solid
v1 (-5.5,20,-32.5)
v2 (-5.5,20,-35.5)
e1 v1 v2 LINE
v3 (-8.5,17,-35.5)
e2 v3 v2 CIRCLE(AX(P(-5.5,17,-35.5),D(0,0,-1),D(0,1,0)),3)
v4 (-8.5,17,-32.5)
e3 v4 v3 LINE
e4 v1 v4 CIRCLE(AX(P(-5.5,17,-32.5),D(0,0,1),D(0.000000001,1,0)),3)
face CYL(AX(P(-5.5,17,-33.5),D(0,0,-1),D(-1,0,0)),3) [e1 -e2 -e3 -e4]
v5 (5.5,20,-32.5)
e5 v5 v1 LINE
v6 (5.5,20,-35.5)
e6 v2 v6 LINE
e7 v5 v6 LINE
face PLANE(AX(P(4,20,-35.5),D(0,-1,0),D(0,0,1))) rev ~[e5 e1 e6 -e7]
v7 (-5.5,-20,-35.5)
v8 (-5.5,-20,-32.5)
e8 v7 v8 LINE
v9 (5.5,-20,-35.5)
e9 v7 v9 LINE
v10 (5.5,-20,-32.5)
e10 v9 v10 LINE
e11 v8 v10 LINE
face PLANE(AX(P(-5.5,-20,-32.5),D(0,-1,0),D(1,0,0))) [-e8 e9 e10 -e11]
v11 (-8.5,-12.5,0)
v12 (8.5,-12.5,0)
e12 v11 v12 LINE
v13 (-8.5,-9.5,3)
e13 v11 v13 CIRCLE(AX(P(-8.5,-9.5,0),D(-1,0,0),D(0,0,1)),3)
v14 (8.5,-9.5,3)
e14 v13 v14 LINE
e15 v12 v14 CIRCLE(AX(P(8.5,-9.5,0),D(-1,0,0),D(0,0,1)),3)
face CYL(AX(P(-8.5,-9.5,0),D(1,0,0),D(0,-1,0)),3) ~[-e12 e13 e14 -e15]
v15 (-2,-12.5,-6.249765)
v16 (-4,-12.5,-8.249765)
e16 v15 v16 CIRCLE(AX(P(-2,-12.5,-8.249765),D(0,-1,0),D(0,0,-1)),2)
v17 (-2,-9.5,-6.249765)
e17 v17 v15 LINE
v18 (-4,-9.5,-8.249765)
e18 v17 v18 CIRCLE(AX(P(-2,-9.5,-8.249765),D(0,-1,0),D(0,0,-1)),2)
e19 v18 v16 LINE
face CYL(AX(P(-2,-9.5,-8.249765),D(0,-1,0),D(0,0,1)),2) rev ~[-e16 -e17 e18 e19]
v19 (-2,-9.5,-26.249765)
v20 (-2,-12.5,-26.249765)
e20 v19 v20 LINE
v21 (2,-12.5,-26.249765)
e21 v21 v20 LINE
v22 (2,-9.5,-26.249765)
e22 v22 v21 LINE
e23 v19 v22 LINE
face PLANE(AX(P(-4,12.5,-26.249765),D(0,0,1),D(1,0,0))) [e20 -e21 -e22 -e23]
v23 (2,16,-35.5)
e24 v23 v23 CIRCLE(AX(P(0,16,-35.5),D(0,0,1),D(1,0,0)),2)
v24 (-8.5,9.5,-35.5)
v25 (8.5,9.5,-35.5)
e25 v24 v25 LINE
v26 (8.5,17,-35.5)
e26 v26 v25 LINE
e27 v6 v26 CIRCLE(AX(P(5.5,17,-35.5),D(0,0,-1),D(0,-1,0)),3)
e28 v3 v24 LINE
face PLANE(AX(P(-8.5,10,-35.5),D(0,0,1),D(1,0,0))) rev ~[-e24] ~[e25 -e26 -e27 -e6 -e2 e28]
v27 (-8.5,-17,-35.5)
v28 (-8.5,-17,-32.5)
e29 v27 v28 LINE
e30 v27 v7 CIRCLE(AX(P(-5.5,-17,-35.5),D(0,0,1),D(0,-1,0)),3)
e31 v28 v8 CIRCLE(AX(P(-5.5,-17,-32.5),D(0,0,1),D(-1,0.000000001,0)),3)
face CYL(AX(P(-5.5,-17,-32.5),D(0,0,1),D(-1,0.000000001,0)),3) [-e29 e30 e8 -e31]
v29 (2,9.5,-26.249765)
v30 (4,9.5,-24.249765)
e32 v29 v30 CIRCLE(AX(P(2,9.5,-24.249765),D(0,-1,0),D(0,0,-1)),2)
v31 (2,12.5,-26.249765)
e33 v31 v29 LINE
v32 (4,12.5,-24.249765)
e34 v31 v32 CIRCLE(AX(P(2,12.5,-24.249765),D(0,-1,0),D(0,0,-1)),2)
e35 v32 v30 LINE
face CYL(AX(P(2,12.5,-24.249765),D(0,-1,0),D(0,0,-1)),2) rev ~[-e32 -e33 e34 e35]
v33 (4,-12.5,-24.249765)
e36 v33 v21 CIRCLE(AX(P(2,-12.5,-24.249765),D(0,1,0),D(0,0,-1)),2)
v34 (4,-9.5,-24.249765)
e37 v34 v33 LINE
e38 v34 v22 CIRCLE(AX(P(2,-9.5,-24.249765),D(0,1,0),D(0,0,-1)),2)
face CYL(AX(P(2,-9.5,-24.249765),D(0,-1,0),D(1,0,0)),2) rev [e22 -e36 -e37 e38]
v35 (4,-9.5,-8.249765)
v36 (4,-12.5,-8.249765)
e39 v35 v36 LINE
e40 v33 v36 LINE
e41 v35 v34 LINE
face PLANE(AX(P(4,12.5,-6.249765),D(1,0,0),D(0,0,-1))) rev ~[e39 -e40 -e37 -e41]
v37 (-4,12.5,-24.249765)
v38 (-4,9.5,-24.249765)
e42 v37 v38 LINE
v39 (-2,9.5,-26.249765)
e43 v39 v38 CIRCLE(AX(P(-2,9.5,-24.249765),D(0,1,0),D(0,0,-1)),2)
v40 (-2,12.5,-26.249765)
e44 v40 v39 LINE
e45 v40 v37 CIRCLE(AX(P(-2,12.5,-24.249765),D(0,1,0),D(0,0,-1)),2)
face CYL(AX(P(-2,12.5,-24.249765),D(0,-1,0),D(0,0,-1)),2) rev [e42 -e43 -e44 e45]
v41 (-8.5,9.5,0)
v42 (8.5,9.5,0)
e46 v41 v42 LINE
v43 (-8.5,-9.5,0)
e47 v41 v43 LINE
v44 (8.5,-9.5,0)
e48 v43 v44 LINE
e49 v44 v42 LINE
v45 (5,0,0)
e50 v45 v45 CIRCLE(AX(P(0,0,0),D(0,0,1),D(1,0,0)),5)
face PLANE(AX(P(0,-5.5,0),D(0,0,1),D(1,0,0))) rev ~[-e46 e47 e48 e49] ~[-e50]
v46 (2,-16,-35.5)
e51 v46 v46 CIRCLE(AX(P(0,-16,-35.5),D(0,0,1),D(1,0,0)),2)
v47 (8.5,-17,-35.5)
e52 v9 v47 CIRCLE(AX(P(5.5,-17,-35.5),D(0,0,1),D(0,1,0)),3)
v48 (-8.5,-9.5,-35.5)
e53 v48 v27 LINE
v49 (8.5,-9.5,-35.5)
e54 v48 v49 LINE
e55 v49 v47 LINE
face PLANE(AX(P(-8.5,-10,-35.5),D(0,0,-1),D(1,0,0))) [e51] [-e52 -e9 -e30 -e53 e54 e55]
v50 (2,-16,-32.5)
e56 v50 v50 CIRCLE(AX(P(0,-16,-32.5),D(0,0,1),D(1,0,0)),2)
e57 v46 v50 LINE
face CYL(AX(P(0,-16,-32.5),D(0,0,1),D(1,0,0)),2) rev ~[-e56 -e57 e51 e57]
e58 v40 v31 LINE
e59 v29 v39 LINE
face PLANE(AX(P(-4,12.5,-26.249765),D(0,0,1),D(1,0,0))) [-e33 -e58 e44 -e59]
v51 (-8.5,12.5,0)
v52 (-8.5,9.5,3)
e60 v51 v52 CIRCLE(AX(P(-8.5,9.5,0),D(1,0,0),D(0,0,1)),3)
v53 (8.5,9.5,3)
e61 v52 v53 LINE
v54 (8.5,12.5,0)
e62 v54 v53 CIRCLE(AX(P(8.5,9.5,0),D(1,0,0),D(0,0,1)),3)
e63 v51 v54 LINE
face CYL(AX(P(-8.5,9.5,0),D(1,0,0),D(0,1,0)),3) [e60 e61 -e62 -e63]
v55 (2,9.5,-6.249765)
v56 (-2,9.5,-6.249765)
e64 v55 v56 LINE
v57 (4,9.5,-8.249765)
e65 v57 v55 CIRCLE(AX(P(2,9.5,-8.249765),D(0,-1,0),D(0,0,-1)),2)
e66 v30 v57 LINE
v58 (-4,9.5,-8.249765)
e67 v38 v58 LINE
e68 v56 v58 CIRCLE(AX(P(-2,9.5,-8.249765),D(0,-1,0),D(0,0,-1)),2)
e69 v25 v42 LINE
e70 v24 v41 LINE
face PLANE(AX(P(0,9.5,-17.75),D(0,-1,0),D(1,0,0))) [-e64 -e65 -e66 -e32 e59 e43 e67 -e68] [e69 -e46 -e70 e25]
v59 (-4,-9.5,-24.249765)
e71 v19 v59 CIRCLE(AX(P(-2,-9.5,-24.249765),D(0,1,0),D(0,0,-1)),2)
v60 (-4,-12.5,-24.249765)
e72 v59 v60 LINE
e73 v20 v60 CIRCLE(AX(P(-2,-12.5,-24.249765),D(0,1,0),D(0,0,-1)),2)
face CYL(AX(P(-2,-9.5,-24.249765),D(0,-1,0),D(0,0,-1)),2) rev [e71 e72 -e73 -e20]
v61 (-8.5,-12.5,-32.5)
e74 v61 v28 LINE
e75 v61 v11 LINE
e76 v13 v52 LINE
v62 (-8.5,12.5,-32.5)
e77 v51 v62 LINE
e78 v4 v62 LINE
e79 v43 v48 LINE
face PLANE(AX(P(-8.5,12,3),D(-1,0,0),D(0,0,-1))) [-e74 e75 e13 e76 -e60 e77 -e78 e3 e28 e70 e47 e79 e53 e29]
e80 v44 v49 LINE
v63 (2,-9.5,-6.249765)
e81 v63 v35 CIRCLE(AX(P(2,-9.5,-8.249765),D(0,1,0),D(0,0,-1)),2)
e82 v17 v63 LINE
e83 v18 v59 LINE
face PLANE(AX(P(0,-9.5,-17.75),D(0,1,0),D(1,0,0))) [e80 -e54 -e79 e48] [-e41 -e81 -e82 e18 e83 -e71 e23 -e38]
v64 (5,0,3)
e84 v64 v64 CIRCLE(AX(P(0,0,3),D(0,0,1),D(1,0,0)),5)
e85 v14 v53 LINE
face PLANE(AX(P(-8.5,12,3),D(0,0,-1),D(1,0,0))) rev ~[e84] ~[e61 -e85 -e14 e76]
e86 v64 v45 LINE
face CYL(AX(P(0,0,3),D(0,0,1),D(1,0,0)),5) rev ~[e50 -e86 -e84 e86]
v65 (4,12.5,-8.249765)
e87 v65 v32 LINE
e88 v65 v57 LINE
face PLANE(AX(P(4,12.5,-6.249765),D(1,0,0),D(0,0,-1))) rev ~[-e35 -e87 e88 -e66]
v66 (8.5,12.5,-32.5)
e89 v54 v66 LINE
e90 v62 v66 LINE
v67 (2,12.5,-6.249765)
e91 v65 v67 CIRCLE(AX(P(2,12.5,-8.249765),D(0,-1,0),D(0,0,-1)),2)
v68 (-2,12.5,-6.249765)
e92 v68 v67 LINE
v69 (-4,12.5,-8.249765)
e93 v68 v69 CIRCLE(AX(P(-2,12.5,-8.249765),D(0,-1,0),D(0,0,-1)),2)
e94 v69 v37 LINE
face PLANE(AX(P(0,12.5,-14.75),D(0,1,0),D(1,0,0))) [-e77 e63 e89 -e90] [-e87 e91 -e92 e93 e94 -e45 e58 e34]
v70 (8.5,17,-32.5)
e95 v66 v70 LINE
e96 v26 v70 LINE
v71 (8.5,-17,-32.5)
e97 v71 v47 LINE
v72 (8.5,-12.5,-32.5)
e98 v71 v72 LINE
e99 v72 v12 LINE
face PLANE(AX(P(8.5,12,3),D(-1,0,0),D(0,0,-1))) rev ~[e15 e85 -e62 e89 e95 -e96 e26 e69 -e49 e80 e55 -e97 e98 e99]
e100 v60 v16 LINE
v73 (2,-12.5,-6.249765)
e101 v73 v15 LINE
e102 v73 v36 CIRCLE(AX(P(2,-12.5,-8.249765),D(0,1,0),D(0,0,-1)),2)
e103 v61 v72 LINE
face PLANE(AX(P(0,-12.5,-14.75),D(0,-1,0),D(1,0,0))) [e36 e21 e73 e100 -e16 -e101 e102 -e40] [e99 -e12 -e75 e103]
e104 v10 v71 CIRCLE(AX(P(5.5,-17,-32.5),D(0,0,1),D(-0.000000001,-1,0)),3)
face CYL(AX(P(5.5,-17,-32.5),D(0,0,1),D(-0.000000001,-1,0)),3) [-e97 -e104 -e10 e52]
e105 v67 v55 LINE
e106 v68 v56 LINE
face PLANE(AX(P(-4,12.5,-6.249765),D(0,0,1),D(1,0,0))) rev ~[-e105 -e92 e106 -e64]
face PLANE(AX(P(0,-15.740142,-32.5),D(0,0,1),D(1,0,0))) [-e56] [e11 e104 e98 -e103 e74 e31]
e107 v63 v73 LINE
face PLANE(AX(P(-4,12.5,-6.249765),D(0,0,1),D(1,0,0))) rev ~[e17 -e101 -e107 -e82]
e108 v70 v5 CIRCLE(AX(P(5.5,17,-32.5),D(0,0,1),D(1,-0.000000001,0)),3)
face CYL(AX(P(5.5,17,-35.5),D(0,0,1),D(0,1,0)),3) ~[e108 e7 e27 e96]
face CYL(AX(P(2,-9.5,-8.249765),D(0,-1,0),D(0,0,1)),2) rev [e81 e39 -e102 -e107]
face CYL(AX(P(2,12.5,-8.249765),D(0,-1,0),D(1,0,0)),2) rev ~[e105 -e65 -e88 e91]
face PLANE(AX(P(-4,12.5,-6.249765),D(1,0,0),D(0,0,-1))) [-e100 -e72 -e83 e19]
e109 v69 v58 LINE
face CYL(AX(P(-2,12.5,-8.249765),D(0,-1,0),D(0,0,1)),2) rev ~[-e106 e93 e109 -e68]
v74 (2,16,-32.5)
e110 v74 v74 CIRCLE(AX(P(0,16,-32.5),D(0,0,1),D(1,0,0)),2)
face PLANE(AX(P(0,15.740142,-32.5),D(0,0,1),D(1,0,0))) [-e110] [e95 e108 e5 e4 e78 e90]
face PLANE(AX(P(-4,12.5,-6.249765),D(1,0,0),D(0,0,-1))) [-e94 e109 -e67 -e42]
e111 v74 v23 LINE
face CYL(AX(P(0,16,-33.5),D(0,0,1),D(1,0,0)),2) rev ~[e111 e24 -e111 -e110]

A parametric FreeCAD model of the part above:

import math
import FreeCAD as App
import Part
import Sketcher

V = App.Vector


def edges_at(feature, points):
    """Names of the edges that pass closest to the given points."""
    edges = feature.Shape.Edges
    near = lambda p: min(range(len(edges)), key=lambda i: edges[i].distToShape(Part.Vertex(*p))[0])
    return sorted({f"Edge{near(p) + 1}" for p in points})


def add_polygon(sketch, points):
    """Adds a closed chain of lines whose ends are joined by coincident constraints."""
    first, n = sketch.GeometryCount, len(points)
    for a, b in zip(points, points[1:] + points[:1]):
        sketch.addGeometry(Part.LineSegment(App.Vector(*a, 0), App.Vector(*b, 0)), False)
    for i in range(n):
        sketch.addConstraint(Sketcher.Constraint("Coincident", first + i, 2, first + (i + 1) % n, 1))

doc = App.newDocument("Part")
body = doc.addObject("PartDesign::Body", "Body")

sketch1 = doc.addObject("Sketcher::SketchObject", "Sketch")
body.addObject(sketch1)
sketch1.AttachmentSupport = (doc.XY_Plane, [""])
sketch1.MapMode = "FlatFace"
sketch1.addGeometry(Part.ArcOfCircle(Part.Circle(V(0, 0, 0), V(0, 0, 1), 7.5), math.radians(-57.769047), math.radians(0)), False)
sketch1.addGeometry(Part.ArcOfCircle(Part.Circle(V(0, 0, 0), V(0, 0, 1), 7.5), math.radians(0), math.radians(57.769047)), False)
sketch1.addGeometry(Part.LineSegment(V(4, 6.344289, 0), V(4, 10, 0)), False)
sketch1.addGeometry(Part.LineSegment(V(4, 10, 0), V(-4, 10, 0)), False)
sketch1.addGeometry(Part.LineSegment(V(-4, 10, 0), V(-4, 6.344289, 0)), False)
sketch1.addGeometry(Part.ArcOfCircle(Part.Circle(V(0, 0, 0), V(0, 0, 1), 7.5), math.radians(122.230953), math.radians(237.769047)), False)
sketch1.addGeometry(Part.LineSegment(V(-4, -6.344289, 0), V(-4, -10, 0)), False)
sketch1.addGeometry(Part.LineSegment(V(-4, -10, 0), V(4, -10, 0)), False)
sketch1.addGeometry(Part.LineSegment(V(4, -10, 0), V(4, -6.344289, 0)), False)
sketch1.addGeometry(Part.Circle(V(0, 0, 0), V(0, 0, 1), 2), False)
sketch1.addConstraint(Sketcher.Constraint("Tangent", 0, 2, 1, 1))
sketch1.addConstraint(Sketcher.Constraint("Coincident", 1, 2, 2, 1))
sketch1.addConstraint(Sketcher.Constraint("Coincident", 2, 2, 3, 1))
sketch1.addConstraint(Sketcher.Constraint("Coincident", 3, 2, 4, 1))
sketch1.addConstraint(Sketcher.Constraint("Coincident", 4, 2, 5, 1))
sketch1.addConstraint(Sketcher.Constraint("Coincident", 5, 2, 6, 1))
sketch1.addConstraint(Sketcher.Constraint("Coincident", 6, 2, 7, 1))
sketch1.addConstraint(Sketcher.Constraint("Coincident", 7, 2, 8, 1))
sketch1.addConstraint(Sketcher.Constraint("Coincident", 8, 2, 0, 1))
sketch1.addConstraint(Sketcher.Constraint("Vertical", 2))
sketch1.addConstraint(Sketcher.Constraint("Horizontal", 3))
sketch1.addConstraint(Sketcher.Constraint("Vertical", 4))
sketch1.addConstraint(Sketcher.Constraint("Vertical", 6))
sketch1.addConstraint(Sketcher.Constraint("Horizontal", 7))
sketch1.addConstraint(Sketcher.Constraint("Vertical", 8))
sketch1.addConstraint(Sketcher.Constraint("Coincident", 0, 3, -1, 1))
sketch1.addConstraint(Sketcher.Constraint("Coincident", 5, 3, -1, 1))
sketch1.addConstraint(Sketcher.Constraint("Coincident", 9, 3, -1, 1))
sketch1.addConstraint(Sketcher.Constraint("Equal", 0, 1))
sketch1.addConstraint(Sketcher.Constraint("Equal", 1, 5))
sketch1.addConstraint(Sketcher.Constraint("Symmetric", 2, 2, 6, 2, -1, 1))
sketch1.addConstraint(Sketcher.Constraint("PointOnObject", 0, 2, -1))
sketch1.addConstraint(Sketcher.Constraint("Horizontal", 1, 2, 4, 2))
sketch1.addConstraint(Sketcher.Constraint("Horizontal", 5, 2, 8, 2))
sketch1.addConstraint(Sketcher.Constraint("Diameter", 9, 4.0))
sketch1.addConstraint(Sketcher.Constraint("Radius", 0, 7.5))
sketch1.addConstraint(Sketcher.Constraint("DistanceX", 3, 2, 3, 1, 8.0))
sketch1.addConstraint(Sketcher.Constraint("DistanceY", -1, 1, 2, 2, 10.0))
pad1 = doc.addObject("PartDesign::Pad", "Pad")
body.addObject(pad1)
pad1.Profile = sketch1
pad1.Length = 2

sketch2 = doc.addObject("Sketcher::SketchObject", "Sketch001")
body.addObject(sketch2)
sketch2.AttachmentSupport = (doc.XY_Plane, [""])
sketch2.MapMode = "FlatFace"
sketch2.AttachmentOffset = App.Placement(V(0, 0, 2), App.Rotation())
add_polygon(sketch2, [(-4, -10), (-4, -12), (4, -12), (4, -10)])
add_polygon(sketch2, [(-4, 12), (-4, 10), (4, 10), (4, 12)])
sketch2.addConstraint(Sketcher.Constraint("Vertical", 0))
sketch2.addConstraint(Sketcher.Constraint("Horizontal", 1))
sketch2.addConstraint(Sketcher.Constraint("Vertical", 2))
sketch2.addConstraint(Sketcher.Constraint("Horizontal", 3))
sketch2.addConstraint(Sketcher.Constraint("Vertical", 4))
sketch2.addConstraint(Sketcher.Constraint("Horizontal", 5))
sketch2.addConstraint(Sketcher.Constraint("Vertical", 6))
sketch2.addConstraint(Sketcher.Constraint("Horizontal", 7))
sketch2.addConstraint(Sketcher.Constraint("Symmetric", 2, 2, 4, 2, -1, 1))
sketch2.addConstraint(Sketcher.Constraint("Symmetric", 0, 2, 6, 2, -1, 1))
sketch2.addConstraint(Sketcher.Constraint("Vertical", 3, 2, 4, 2))
sketch2.addConstraint(Sketcher.Constraint("DistanceX", 1, 1, 1, 2, 8.0))
sketch2.addConstraint(Sketcher.Constraint("DistanceY", 0, 2, 0, 1, 2.0))
sketch2.addConstraint(Sketcher.Constraint("DistanceY", 0, 2, -1, 1, 12.0))
pad2 = doc.addObject("PartDesign::Pad", "Pad001")
body.addObject(pad2)
pad2.Profile = sketch2
pad2.Length = 35.5
pad2.Reversed = True

sketch3 = doc.addObject("Sketcher::SketchObject", "Sketch002")
body.addObject(sketch3)
sketch3.AttachmentSupport = (doc.XY_Plane, [""])
sketch3.MapMode = "FlatFace"
sketch3.addGeometry(Part.Circle(V(0, 5.5, 0), V(0, 0, 1), 1), False)
sketch3.addGeometry(Part.Circle(V(0, -5.5, 0), V(0, 0, 1), 1), False)
sketch3.addConstraint(Sketcher.Constraint("Equal", 0, 1))
sketch3.addConstraint(Sketcher.Constraint("Symmetric", 0, 3, 1, 3, -1, 1))
sketch3.addConstraint(Sketcher.Constraint("PointOnObject", 0, 3, -2))
sketch3.addConstraint(Sketcher.Constraint("Diameter", 0, 2.0))
sketch3.addConstraint(Sketcher.Constraint("DistanceY", 1, 3, 0, 3, 11.0))
pocket1 = doc.addObject("PartDesign::Pocket", "Pocket")
body.addObject(pocket1)
pocket1.Profile = sketch3
pocket1.Length = 8
pocket1.Reversed = True

sketch4 = doc.addObject("Sketcher::SketchObject", "Sketch003")
body.addObject(sketch4)
sketch4.AttachmentSupport = (doc.XY_Plane, [""])
sketch4.MapMode = "FlatFace"
sketch4.AttachmentOffset = App.Placement(V(0, 0, -33.5), App.Rotation())
add_polygon(sketch4, [(4, -10), (4, -20), (-4, -20), (-4, -10)])
add_polygon(sketch4, [(4, 20), (4, 10), (-4, 10), (-4, 20)])
sketch4.addConstraint(Sketcher.Constraint("Vertical", 0))
sketch4.addConstraint(Sketcher.Constraint("Horizontal", 1))
sketch4.addConstraint(Sketcher.Constraint("Vertical", 2))
sketch4.addConstraint(Sketcher.Constraint("Horizontal", 3))
sketch4.addConstraint(Sketcher.Constraint("Vertical", 4))
sketch4.addConstraint(Sketcher.Constraint("Horizontal", 5))
sketch4.addConstraint(Sketcher.Constraint("Vertical", 6))
sketch4.addConstraint(Sketcher.Constraint("Horizontal", 7))
sketch4.addConstraint(Sketcher.Constraint("Symmetric", 2, 2, 4, 2, -1, 1))
sketch4.addConstraint(Sketcher.Constraint("Symmetric", 0, 2, 6, 2, -1, 1))
sketch4.addConstraint(Sketcher.Constraint("Vertical", 3, 2, 4, 2))
sketch4.addConstraint(Sketcher.Constraint("DistanceX", 1, 2, 1, 1, 8.0))
sketch4.addConstraint(Sketcher.Constraint("DistanceY", 0, 2, 0, 1, 10.0))
sketch4.addConstraint(Sketcher.Constraint("DistanceY", 0, 2, -1, 1, 20.0))
pad3 = doc.addObject("PartDesign::Pad", "Pad002")
body.addObject(pad3)
pad3.Profile = sketch4
pad3.Length = 2
pad3.Reversed = True

sketch5 = doc.addObject("Sketcher::SketchObject", "Sketch004")
body.addObject(sketch5)
sketch5.AttachmentSupport = (doc.XY_Plane, [""])
sketch5.MapMode = "FlatFace"
sketch5.AttachmentOffset = App.Placement(V(0, 0, -33.5), App.Rotation())
sketch5.addGeometry(Part.Circle(V(0, 16, 0), V(0, 0, 1), 2), False)
sketch5.addGeometry(Part.Circle(V(0, -16, 0), V(0, 0, 1), 2), False)
sketch5.addConstraint(Sketcher.Constraint("Equal", 0, 1))
sketch5.addConstraint(Sketcher.Constraint("Symmetric", 0, 3, 1, 3, -1, 1))
sketch5.addConstraint(Sketcher.Constraint("PointOnObject", 0, 3, -2))
sketch5.addConstraint(Sketcher.Constraint("Diameter", 0, 4.0))
sketch5.addConstraint(Sketcher.Constraint("DistanceY", -1, 1, 0, 3, 16.0))
pocket2 = doc.addObject("PartDesign::Pocket", "Pocket001")
body.addObject(pocket2)
pocket2.Profile = sketch5
pocket2.Length = 2

sketch6 = doc.addObject("Sketcher::SketchObject", "Sketch005")
body.addObject(sketch6)
sketch6.AttachmentSupport = (doc.YZ_Plane, [""])
sketch6.MapMode = "FlatFace"
sketch6.AttachmentOffset = App.Placement(V(0, 0, -4), App.Rotation())
add_polygon(sketch6, [(10, -35.5), (10, 0), (-10, 0), (-10, -35.5), (-20, -35.5), (-20, -33.5), (-12, -33.5), (-12, 2), (12, 2), (12, -33.5), (20, -33.5), (20, -35.5)])
sketch6.addConstraint(Sketcher.Constraint("Vertical", 0))
sketch6.addConstraint(Sketcher.Constraint("Horizontal", 1))
sketch6.addConstraint(Sketcher.Constraint("Vertical", 2))
sketch6.addConstraint(Sketcher.Constraint("Horizontal", 3))
sketch6.addConstraint(Sketcher.Constraint("Vertical", 4))
sketch6.addConstraint(Sketcher.Constraint("Horizontal", 5))
sketch6.addConstraint(Sketcher.Constraint("Vertical", 6))
sketch6.addConstraint(Sketcher.Constraint("Horizontal", 7))
sketch6.addConstraint(Sketcher.Constraint("Vertical", 8))
sketch6.addConstraint(Sketcher.Constraint("Horizontal", 9))
sketch6.addConstraint(Sketcher.Constraint("Vertical", 10))
sketch6.addConstraint(Sketcher.Constraint("Horizontal", 11))
sketch6.addConstraint(Sketcher.Constraint("Symmetric", 0, 2, 1, 2, -1, 1))
sketch6.addConstraint(Sketcher.Constraint("Symmetric", 5, 2, 8, 2, -2))
sketch6.addConstraint(Sketcher.Constraint("Symmetric", 3, 2, 10, 2, -2))
sketch6.addConstraint(Sketcher.Constraint("Equal", 2, 6))
sketch6.addConstraint(Sketcher.Constraint("DistanceX", 1, 2, 1, 1, 20.0))
sketch6.addConstraint(Sketcher.Constraint("DistanceX", 3, 2, 3, 1, 10.0))
sketch6.addConstraint(Sketcher.Constraint("DistanceX", 5, 1, 5, 2, 8.0))
sketch6.addConstraint(Sketcher.Constraint("DistanceY", 4, 1, 4, 2, 2.0))
sketch6.addConstraint(Sketcher.Constraint("DistanceY", 0, 1, 0, 2, 35.5))
pad4 = doc.addObject("PartDesign::Pad", "Pad003")
body.addObject(pad4)
pad4.Profile = sketch6
pad4.Length = 4.5
pad4.Reversed = True

sketch7 = doc.addObject("Sketcher::SketchObject", "Sketch006")
body.addObject(sketch7)
sketch7.AttachmentSupport = (doc.YZ_Plane, [""])
sketch7.MapMode = "FlatFace"
sketch7.AttachmentOffset = App.Placement(V(0, 0, 4), App.Rotation())
add_polygon(sketch7, [(-12, 2), (-12, -33.5), (-20, -33.5), (-20, -35.5), (-10, -35.5), (-10, 0), (10, 0), (10, -35.5), (20, -35.5), (20, -33.5), (12, -33.5), (12, 2)])
sketch7.addConstraint(Sketcher.Constraint("Vertical", 0))
sketch7.addConstraint(Sketcher.Constraint("Horizontal", 1))
sketch7.addConstraint(Sketcher.Constraint("Vertical", 2))
sketch7.addConstraint(Sketcher.Constraint("Horizontal", 3))
sketch7.addConstraint(Sketcher.Constraint("Vertical", 4))
sketch7.addConstraint(Sketcher.Constraint("Horizontal", 5))
sketch7.addConstraint(Sketcher.Constraint("Vertical", 6))
sketch7.addConstraint(Sketcher.Constraint("Horizontal", 7))
sketch7.addConstraint(Sketcher.Constraint("Vertical", 8))
sketch7.addConstraint(Sketcher.Constraint("Horizontal", 9))
sketch7.addConstraint(Sketcher.Constraint("Vertical", 10))
sketch7.addConstraint(Sketcher.Constraint("Horizontal", 11))
sketch7.addConstraint(Sketcher.Constraint("Symmetric", 4, 2, 5, 2, -1, 1))
sketch7.addConstraint(Sketcher.Constraint("Symmetric", 2, 2, 7, 2, -2))
sketch7.addConstraint(Sketcher.Constraint("Symmetric", 0, 2, 9, 2, -2))
sketch7.addConstraint(Sketcher.Constraint("Equal", 0, 4))
sketch7.addConstraint(Sketcher.Constraint("DistanceX", 1, 2, 1, 1, 8.0))
sketch7.addConstraint(Sketcher.Constraint("DistanceX", 3, 1, 3, 2, 10.0))
sketch7.addConstraint(Sketcher.Constraint("DistanceX", 5, 1, 5, 2, 20.0))
sketch7.addConstraint(Sketcher.Constraint("DistanceY", 2, 2, 2, 1, 2.0))
sketch7.addConstraint(Sketcher.Constraint("DistanceY", 0, 2, 0, 1, 35.5))
pad5 = doc.addObject("PartDesign::Pad", "Pad004")
body.addObject(pad5)
pad5.Profile = sketch7
pad5.Length = 4.5
doc.recompute()

fillet = doc.addObject("PartDesign::Fillet", "Fillet")
body.addObject(fillet)
fillet.Base = (pad5, edges_at(pad5, [
    (-8.5, -20, -34.5),
    (-8.5, 20, -34.5),
    (8.5, 20, -34.5),
    (8.5, -20, -34.5),
]))
fillet.Radius = 3

sketch8 = doc.addObject("Sketcher::SketchObject", "Sketch007")
body.addObject(sketch8)
sketch8.AttachmentSupport = (doc.XY_Plane, [""])
sketch8.MapMode = "FlatFace"
sketch8.AttachmentOffset = App.Placement(V(0, 0, 2), App.Rotation())
add_polygon(sketch8, [(-8.5, 12), (-8.5, -12), (8.5, -12), (8.5, 12)])
sketch8.addGeometry(Part.Circle(V(0, -5.5, 0), V(0, 0, 1), 1), False)
sketch8.addGeometry(Part.Circle(V(0, 0, 0), V(0, 0, 1), 2), False)
sketch8.addGeometry(Part.Circle(V(0, 5.5, 0), V(0, 0, 1), 1), False)
sketch8.addConstraint(Sketcher.Constraint("Vertical", 0))
sketch8.addConstraint(Sketcher.Constraint("Horizontal", 1))
sketch8.addConstraint(Sketcher.Constraint("Vertical", 2))
sketch8.addConstraint(Sketcher.Constraint("Horizontal", 3))
sketch8.addConstraint(Sketcher.Constraint("Coincident", 5, 3, -1, 1))
sketch8.addConstraint(Sketcher.Constraint("Equal", 4, 6))
sketch8.addConstraint(Sketcher.Constraint("Symmetric", 4, 3, 6, 3, -1, 1))
sketch8.addConstraint(Sketcher.Constraint("Symmetric", 0, 2, 2, 2, -1, 1))
sketch8.addConstraint(Sketcher.Constraint("PointOnObject", 4, 3, -2))
sketch8.addConstraint(Sketcher.Constraint("Diameter", 4, 2.0))
sketch8.addConstraint(Sketcher.Constraint("Diameter", 5, 4.0))
sketch8.addConstraint(Sketcher.Constraint("DistanceX", 1, 1, 1, 2, 17.0))
sketch8.addConstraint(Sketcher.Constraint("DistanceY", 0, 2, 0, 1, 24.0))
sketch8.addConstraint(Sketcher.Constraint("DistanceY", 4, 3, 6, 3, 11.0))
pad6 = doc.addObject("PartDesign::Pad", "Pad005")
body.addObject(pad6)
pad6.Profile = sketch8
pad6.Length = 1

sketch9 = doc.addObject("Sketcher::SketchObject", "Sketch008")
body.addObject(sketch9)
sketch9.AttachmentSupport = (doc.XZ_Plane, [""])
sketch9.MapMode = "FlatFace"
sketch9.AttachmentOffset = App.Placement(V(0, 0, -10), App.Rotation())
add_polygon(sketch9, [(-8.5, 0), (-8.5, -35.5), (8.5, -35.5), (8.5, 0)])
sketch9.addConstraint(Sketcher.Constraint("Vertical", 0))
sketch9.addConstraint(Sketcher.Constraint("Horizontal", 1))
sketch9.addConstraint(Sketcher.Constraint("Vertical", 2))
sketch9.addConstraint(Sketcher.Constraint("Horizontal", 3))
sketch9.addConstraint(Sketcher.Constraint("Symmetric", 2, 2, 3, 2, -1, 1))
sketch9.addConstraint(Sketcher.Constraint("DistanceX", 1, 1, 1, 2, 17.0))
sketch9.addConstraint(Sketcher.Constraint("DistanceY", 0, 2, 0, 1, 35.5))
pad7 = doc.addObject("PartDesign::Pad", "Pad006")
body.addObject(pad7)
pad7.Profile = sketch9
pad7.Length = 0.5

sketch10 = doc.addObject("Sketcher::SketchObject", "Sketch009")
body.addObject(sketch10)
sketch10.AttachmentSupport = (doc.XZ_Plane, [""])
sketch10.MapMode = "FlatFace"
sketch10.AttachmentOffset = App.Placement(V(0, 0, 10), App.Rotation())
add_polygon(sketch10, [(-8.5, -35.5), (-8.5, 0), (8.5, 0), (8.5, -35.5)])
sketch10.addConstraint(Sketcher.Constraint("Vertical", 0))
sketch10.addConstraint(Sketcher.Constraint("Horizontal", 1))
sketch10.addConstraint(Sketcher.Constraint("Vertical", 2))
sketch10.addConstraint(Sketcher.Constraint("Horizontal", 3))
sketch10.addConstraint(Sketcher.Constraint("Symmetric", 0, 2, 1, 2, -1, 1))
sketch10.addConstraint(Sketcher.Constraint("DistanceX", 1, 1, 1, 2, 17.0))
sketch10.addConstraint(Sketcher.Constraint("DistanceY", 0, 1, 0, 2, 35.5))
pad8 = doc.addObject("PartDesign::Pad", "Pad007")
body.addObject(pad8)
pad8.Profile = sketch10
pad8.Length = 0.5
pad8.Reversed = True

sketch11 = doc.addObject("Sketcher::SketchObject", "Sketch010")
body.addObject(sketch11)
sketch11.AttachmentSupport = (doc.XY_Plane, [""])
sketch11.MapMode = "FlatFace"
sketch11.AttachmentOffset = App.Placement(V(0, 0, -32.5), App.Rotation())
sketch11.addGeometry(Part.LineSegment(V(-8.5, -12, 0), V(-8.5, -17, 0)), False)
sketch11.addGeometry(Part.ArcOfCircle(Part.Circle(V(-5.5, -17, 0), V(0, 0, 1), 3), math.radians(180), math.radians(270)), False)
sketch11.addGeometry(Part.LineSegment(V(-5.5, -20, 0), V(5.5, -20, 0)), False)
sketch11.addGeometry(Part.ArcOfCircle(Part.Circle(V(5.5, -17, 0), V(0, 0, 1), 3), math.radians(-90), math.radians(0)), False)
sketch11.addGeometry(Part.LineSegment(V(8.5, -17, 0), V(8.5, -12, 0)), False)
sketch11.addGeometry(Part.LineSegment(V(8.5, -12, 0), V(-8.5, -12, 0)), False)
sketch11.addGeometry(Part.Circle(V(0, -16, 0), V(0, 0, 1), 2), False)
sketch11.addGeometry(Part.LineSegment(V(5.5, 20, 0), V(-5.5, 20, 0)), False)
sketch11.addGeometry(Part.ArcOfCircle(Part.Circle(V(-5.5, 17, 0), V(0, 0, 1), 3), math.radians(90), math.radians(180)), False)
sketch11.addGeometry(Part.LineSegment(V(-8.5, 17, 0), V(-8.5, 12, 0)), False)
sketch11.addGeometry(Part.LineSegment(V(-8.5, 12, 0), V(8.5, 12, 0)), False)
sketch11.addGeometry(Part.LineSegment(V(8.5, 12, 0), V(8.5, 17, 0)), False)
sketch11.addGeometry(Part.ArcOfCircle(Part.Circle(V(5.5, 17, 0), V(0, 0, 1), 3), math.radians(0), math.radians(90)), False)
sketch11.addGeometry(Part.Circle(V(0, 16, 0), V(0, 0, 1), 2), False)
sketch11.addConstraint(Sketcher.Constraint("Tangent", 0, 2, 1, 1))
sketch11.addConstraint(Sketcher.Constraint("Tangent", 1, 2, 2, 1))
sketch11.addConstraint(Sketcher.Constraint("Tangent", 2, 2, 3, 1))
sketch11.addConstraint(Sketcher.Constraint("Tangent", 3, 2, 4, 1))
sketch11.addConstraint(Sketcher.Constraint("Coincident", 4, 2, 5, 1))
sketch11.addConstraint(Sketcher.Constraint("Coincident", 5, 2, 0, 1))
sketch11.addConstraint(Sketcher.Constraint("Tangent", 7, 2, 8, 1))
sketch11.addConstraint(Sketcher.Constraint("Tangent", 8, 2, 9, 1))
sketch11.addConstraint(Sketcher.Constraint("Coincident", 9, 2, 10, 1))
sketch11.addConstraint(Sketcher.Constraint("Coincident", 10, 2, 11, 1))
sketch11.addConstraint(Sketcher.Constraint("Tangent", 11, 2, 12, 1))
sketch11.addConstraint(Sketcher.Constraint("Tangent", 12, 2, 7, 1))
sketch11.addConstraint(Sketcher.Constraint("Vertical", 0))
sketch11.addConstraint(Sketcher.Constraint("Horizontal", 2))
sketch11.addConstraint(Sketcher.Constraint("Vertical", 4))
sketch11.addConstraint(Sketcher.Constraint("Horizontal", 5))
sketch11.addConstraint(Sketcher.Constraint("Horizontal", 7))
sketch11.addConstraint(Sketcher.Constraint("Vertical", 9))
sketch11.addConstraint(Sketcher.Constraint("Horizontal", 10))
sketch11.addConstraint(Sketcher.Constraint("Vertical", 11))
sketch11.addConstraint(Sketcher.Constraint("Equal", 1, 3))
sketch11.addConstraint(Sketcher.Constraint("Equal", 3, 8))
sketch11.addConstraint(Sketcher.Constraint("Equal", 8, 12))
sketch11.addConstraint(Sketcher.Constraint("Equal", 6, 13))
sketch11.addConstraint(Sketcher.Constraint("Symmetric", 3, 3, 8, 3, -1, 1))
sketch11.addConstraint(Sketcher.Constraint("Symmetric", 6, 3, 13, 3, -1, 1))
sketch11.addConstraint(Sketcher.Constraint("Symmetric", 5, 2, 10, 2, -1, 1))
sketch11.addConstraint(Sketcher.Constraint("PointOnObject", 6, 3, -2))
sketch11.addConstraint(Sketcher.Constraint("Vertical", 1, 3, 8, 3))
sketch11.addConstraint(Sketcher.Constraint("Diameter", 6, 4.0))
sketch11.addConstraint(Sketcher.Constraint("Radius", 1, 3.0))
sketch11.addConstraint(Sketcher.Constraint("DistanceX", 2, 1, 2, 2, 11.0))
sketch11.addConstraint(Sketcher.Constraint("DistanceY", 0, 2, 0, 1, 5.0))
sketch11.addConstraint(Sketcher.Constraint("DistanceY", 1, 3, -1, 1, 17.0))
sketch11.addConstraint(Sketcher.Constraint("DistanceY", 6, 3, -1, 1, 16.0))
pad9 = doc.addObject("PartDesign::Pad", "Pad008")
body.addObject(pad9)
pad9.Profile = sketch11
pad9.Length = 1
pad9.Reversed = True

sketch12 = doc.addObject("Sketcher::SketchObject", "Sketch011")
body.addObject(sketch12)
sketch12.AttachmentSupport = (doc.XZ_Plane, [""])
sketch12.MapMode = "FlatFace"
sketch12.AttachmentOffset = App.Placement(V(0, 0, 12), App.Rotation())
add_polygon(sketch12, [(-8.5, 3), (-8.5, -32.5), (8.5, -32.5), (8.5, 3)])
sketch12.addConstraint(Sketcher.Constraint("Vertical", 0))
sketch12.addConstraint(Sketcher.Constraint("Horizontal", 1))
sketch12.addConstraint(Sketcher.Constraint("Vertical", 2))
sketch12.addConstraint(Sketcher.Constraint("Horizontal", 3))
sketch12.addConstraint(Sketcher.Constraint("DistanceX", 1, 1, 1, 2, 17.0))
sketch12.addConstraint(Sketcher.Constraint("DistanceY", 0, 2, 0, 1, 35.5))
sketch12.addConstraint(Sketcher.Constraint("DistanceY", -1, 1, 2, 2, 3.0))
sketch12.addConstraint(Sketcher.Constraint("DistanceX", 0, 2, -1, 1, 8.5))
pad10 = doc.addObject("PartDesign::Pad", "Pad009")
body.addObject(pad10)
pad10.Profile = sketch12
pad10.Length = 0.5

sketch13 = doc.addObject("Sketcher::SketchObject", "Sketch012")
body.addObject(sketch13)
sketch13.AttachmentSupport = (doc.XZ_Plane, [""])
sketch13.MapMode = "FlatFace"
sketch13.AttachmentOffset = App.Placement(V(0, 0, -12), App.Rotation())
add_polygon(sketch13, [(-8.5, -32.5), (-8.5, 3), (8.5, 3), (8.5, -32.5)])
sketch13.addConstraint(Sketcher.Constraint("Vertical", 0))
sketch13.addConstraint(Sketcher.Constraint("Horizontal", 1))
sketch13.addConstraint(Sketcher.Constraint("Vertical", 2))
sketch13.addConstraint(Sketcher.Constraint("Horizontal", 3))
sketch13.addConstraint(Sketcher.Constraint("DistanceX", 1, 1, 1, 2, 17.0))
sketch13.addConstraint(Sketcher.Constraint("DistanceY", 0, 1, 0, 2, 35.5))
sketch13.addConstraint(Sketcher.Constraint("DistanceY", -1, 1, 0, 2, 3.0))
sketch13.addConstraint(Sketcher.Constraint("DistanceX", 0, 2, -1, 1, 8.5))
pad11 = doc.addObject("PartDesign::Pad", "Pad010")
body.addObject(pad11)
pad11.Profile = sketch13
pad11.Length = 0.5
pad11.Reversed = True

sketch14 = doc.addObject("Sketcher::SketchObject", "Sketch013")
body.addObject(sketch14)
sketch14.AttachmentSupport = (doc.XY_Plane, [""])
sketch14.MapMode = "FlatFace"
sketch14.addGeometry(Part.Circle(V(0, -5.5, 0), V(0, 0, 1), 1), False)
sketch14.addGeometry(Part.Circle(V(0, 5.5, 0), V(0, 0, 1), 1), False)
sketch14.addConstraint(Sketcher.Constraint("Equal", 0, 1))
sketch14.addConstraint(Sketcher.Constraint("Symmetric", 0, 3, 1, 3, -1, 1))
sketch14.addConstraint(Sketcher.Constraint("PointOnObject", 0, 3, -2))
sketch14.addConstraint(Sketcher.Constraint("Diameter", 0, 2.0))
sketch14.addConstraint(Sketcher.Constraint("DistanceY", 0, 3, 1, 3, 11.0))
pad12 = doc.addObject("PartDesign::Pad", "Pad011")
body.addObject(pad12)
pad12.Profile = sketch14
pad12.Length = 3

sketch15 = doc.addObject("Sketcher::SketchObject", "Sketch014")
body.addObject(sketch15)
sketch15.AttachmentSupport = (doc.XY_Plane, [""])
sketch15.MapMode = "FlatFace"
sketch15.AttachmentOffset = App.Placement(V(0, 0, 3), App.Rotation())
sketch15.addGeometry(Part.Circle(V(0, 0, 0), V(0, 0, 1), 5), False)
sketch15.addConstraint(Sketcher.Constraint("Coincident", 0, 3, -1, 1))
sketch15.addConstraint(Sketcher.Constraint("Diameter", 0, 10.0))
pocket3 = doc.addObject("PartDesign::Pocket", "Pocket002")
body.addObject(pocket3)
pocket3.Profile = sketch15
pocket3.Length = 3

sketch16 = doc.addObject("Sketcher::SketchObject", "Sketch015")
body.addObject(sketch16)
sketch16.AttachmentSupport = (doc.XZ_Plane, [""])
sketch16.MapMode = "FlatFace"
sketch16.AttachmentOffset = App.Placement(V(0, 0, -12.5), App.Rotation())
add_polygon(sketch16, [(-4, -26.249765), (-4, -6.249765), (4, -6.249765), (4, -26.249765)])
sketch16.addConstraint(Sketcher.Constraint("Vertical", 0))
sketch16.addConstraint(Sketcher.Constraint("Horizontal", 1))
sketch16.addConstraint(Sketcher.Constraint("Vertical", 2))
sketch16.addConstraint(Sketcher.Constraint("Horizontal", 3))
sketch16.addConstraint(Sketcher.Constraint("DistanceX", 1, 1, 1, 2, 8.0))
sketch16.addConstraint(Sketcher.Constraint("DistanceY", 0, 1, 0, 2, 20.0))
sketch16.addConstraint(Sketcher.Constraint("DistanceX", 0, 2, -1, 1, 4.0))
sketch16.addConstraint(Sketcher.Constraint("DistanceY", 0, 2, -1, 1, 6.249765))
pocket4 = doc.addObject("PartDesign::Pocket", "Pocket003")
body.addObject(pocket4)
pocket4.Profile = sketch16
pocket4.Length = 34
pocket4.Reversed = True
doc.recompute()

fillet2 = doc.addObject("PartDesign::Fillet", "Fillet001")
body.addObject(fillet2)
fillet2.Base = (pocket4, edges_at(pocket4, [
    (4, 11, -26.25),
    (4, 11, -6.25),
    (-4, 11, -6.25),
    (-4, 11, -26.25),
    (4, -11, -26.25),
    (4, -11, -6.25),
    (-4, -11, -6.25),
    (-4, -11, -26.25),
]))
fillet2.Radius = 2
doc.recompute()

fillet3 = doc.addObject("PartDesign::Fillet", "Fillet002")
body.addObject(fillet3)
fillet3.Base = (fillet2, edges_at(fillet2, [(0, -12.5, 3), (0, 12.5, 3)]))
fillet3.Radius = 3

doc.recompute()
